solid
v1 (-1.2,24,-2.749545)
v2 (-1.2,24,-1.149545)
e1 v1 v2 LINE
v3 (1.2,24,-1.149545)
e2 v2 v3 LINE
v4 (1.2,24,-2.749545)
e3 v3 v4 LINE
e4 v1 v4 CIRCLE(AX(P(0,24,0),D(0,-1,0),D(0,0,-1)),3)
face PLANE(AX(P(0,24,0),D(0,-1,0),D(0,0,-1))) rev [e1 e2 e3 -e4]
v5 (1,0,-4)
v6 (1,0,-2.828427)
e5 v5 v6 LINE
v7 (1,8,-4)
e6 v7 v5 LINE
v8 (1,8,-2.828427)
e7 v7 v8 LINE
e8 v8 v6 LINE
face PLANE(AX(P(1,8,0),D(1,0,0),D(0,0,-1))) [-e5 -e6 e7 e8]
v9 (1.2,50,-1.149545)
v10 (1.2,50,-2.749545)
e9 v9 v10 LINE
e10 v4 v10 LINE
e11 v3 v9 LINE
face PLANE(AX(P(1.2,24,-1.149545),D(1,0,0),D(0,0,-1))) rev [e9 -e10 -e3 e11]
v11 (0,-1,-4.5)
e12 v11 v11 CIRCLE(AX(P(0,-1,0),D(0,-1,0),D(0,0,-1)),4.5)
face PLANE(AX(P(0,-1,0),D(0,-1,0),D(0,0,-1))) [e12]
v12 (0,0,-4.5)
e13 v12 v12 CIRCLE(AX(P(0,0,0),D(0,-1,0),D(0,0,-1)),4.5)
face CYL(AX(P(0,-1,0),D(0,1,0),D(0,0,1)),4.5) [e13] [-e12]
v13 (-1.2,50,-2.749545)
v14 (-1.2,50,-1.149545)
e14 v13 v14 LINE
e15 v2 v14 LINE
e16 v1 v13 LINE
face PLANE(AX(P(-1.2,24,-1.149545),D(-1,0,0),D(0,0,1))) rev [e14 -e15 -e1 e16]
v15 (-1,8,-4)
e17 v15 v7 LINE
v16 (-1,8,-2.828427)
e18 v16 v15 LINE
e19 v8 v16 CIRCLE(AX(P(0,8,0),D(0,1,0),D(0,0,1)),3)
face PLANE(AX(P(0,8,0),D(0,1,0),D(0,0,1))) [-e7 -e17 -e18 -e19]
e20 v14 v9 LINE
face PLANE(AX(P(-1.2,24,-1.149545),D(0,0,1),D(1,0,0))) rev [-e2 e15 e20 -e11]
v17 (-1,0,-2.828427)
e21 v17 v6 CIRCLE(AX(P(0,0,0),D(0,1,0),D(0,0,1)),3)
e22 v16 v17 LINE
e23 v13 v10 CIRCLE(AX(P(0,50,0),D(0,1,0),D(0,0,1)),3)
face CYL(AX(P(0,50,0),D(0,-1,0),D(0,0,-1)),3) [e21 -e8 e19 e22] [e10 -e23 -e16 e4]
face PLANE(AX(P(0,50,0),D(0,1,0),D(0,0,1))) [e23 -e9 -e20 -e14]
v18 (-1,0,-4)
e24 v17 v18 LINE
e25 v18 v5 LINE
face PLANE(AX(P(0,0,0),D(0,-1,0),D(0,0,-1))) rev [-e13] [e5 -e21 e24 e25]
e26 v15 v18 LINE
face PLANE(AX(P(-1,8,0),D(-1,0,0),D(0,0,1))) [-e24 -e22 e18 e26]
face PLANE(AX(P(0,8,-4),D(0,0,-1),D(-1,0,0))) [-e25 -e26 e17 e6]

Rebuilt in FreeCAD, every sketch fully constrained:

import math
import FreeCAD as App
import Part
import Sketcher
Q = App.Units.Quantity

doc = App.newDocument("Part")
params = doc.addObject("Spreadsheet::Sheet", "Params")
for row, (alias, value) in enumerate([
    ("sketch1_diameter", "6 mm"),
    ("pad1_length", "50 mm"),
    ("sketch2_radius", "3 mm"),
    ("sketch2_width", "2 mm"),
    ("pad2_length", "8 mm"),
    ("sketch3_width", "2.4 mm"),
    ("sketch3_height", "1.6 mm"),
    ("pocket1_length", "26 mm"),
    ("sketch4_diameter", "9 mm"),
    ("pad3_length", "1 mm"),
], start=1):
    params.set(f"A{row}", alias)
    params.set(f"B{row}", "=" + value)
    params.setAlias(f"B{row}", alias)

body = doc.addObject("PartDesign::Body", "Body")

# Sketch on XZ plane
sketch1 = body.newObject("Sketcher::SketchObject", "Sketch")
sketch1.AttachmentSupport = (doc.getObject("XZ_Plane"), [""])
sketch1.MapMode = "FlatFace"
sketch1.addGeometry(Part.Circle(App.Vector(0, 0, 0), App.Vector(0, 0, 1), 3), False)
sketch1.addConstraint([
    Sketcher.Constraint("Coincident", 0, 3, -1, 1),
    Sketcher.Constraint("Diameter", 0, 6.0),
])
sketch1.setExpression("Constraints[1]", "Params.sketch1_diameter")
pad1 = body.newObject("PartDesign::Pad", "Pad")
pad1.Profile = sketch1
pad1.setExpression("Length", "Params.pad1_length")
pad1.Reversed = True

# Sketch on XZ plane
sketch2 = body.newObject("Sketcher::SketchObject", "Sketch001")
sketch2.AttachmentSupport = (doc.getObject("XZ_Plane"), [""])
sketch2.MapMode = "FlatFace"
sketch2.addGeometry([
    Part.LineSegment(App.Vector(-1, -4, 0), App.Vector(-1, -2.8, 0)),
    Part.ArcOfCircle(Part.Circle(App.Vector(0, 0, 0), App.Vector(0, 0, 1), 3), math.radians(-109), math.radians(-71)),
    Part.LineSegment(App.Vector(1, -2.8, 0), App.Vector(1, -4, 0)),
    Part.LineSegment(App.Vector(1, -4, 0), App.Vector(-1, -4, 0)),
], False)
sketch2.addConstraint([
    Sketcher.Constraint("Coincident", 0, 2, 1, 1),
    Sketcher.Constraint("Coincident", 1, 2, 2, 1),
    Sketcher.Constraint("Coincident", 2, 2, 3, 1),
    Sketcher.Constraint("Coincident", 3, 2, 0, 1),
    Sketcher.Constraint("Vertical", 0),
    Sketcher.Constraint("Vertical", 2),
    Sketcher.Constraint("Horizontal", 3),
    Sketcher.Constraint("Coincident", 1, 3, -1, 1),
    Sketcher.Constraint("Horizontal", 0, 2, 1, 2),
    Sketcher.Constraint("Radius", 1, 3.0),
    Sketcher.Constraint("DistanceX", 3, 2, 3, 1, 2.0),
    Sketcher.Constraint("DistanceY", 2, 2, -1, 1, 4.0),
])
sketch2.setExpression("Constraints[9]", "Params.sketch2_radius")
sketch2.setExpression("Constraints[10]", "Params.sketch2_width")
pad2 = body.newObject("PartDesign::Pad", "Pad001")
pad2.Profile = sketch2
pad2.setExpression("Length", "Params.pad2_length")
pad2.Reversed = True

# Sketch on XZ plane
sketch3 = body.newObject("Sketcher::SketchObject", "Sketch002")
sketch3.AttachmentSupport = (doc.getObject("XZ_Plane"), [""])
sketch3.MapMode = "FlatFace"
sketch3.AttachmentOffset = App.Placement(App.Vector(0, 0, -50), App.Rotation())
sketch3.addGeometry([
    Part.LineSegment(App.Vector(-1.2, -1.1, 0), App.Vector(1.2, -1.1, 0)),  # 0
    Part.LineSegment(App.Vector(1.2, -1.1, 0), App.Vector(1.2, -2.7, 0)),  # 1
    Part.LineSegment(App.Vector(1.2, -2.7, 0), App.Vector(0, -4.8, 0)),  # 2
    Part.LineSegment(App.Vector(0, -4.8, 0), App.Vector(-1.2, -2.7, 0)),  # 3
    Part.LineSegment(App.Vector(-1.2, -2.7, 0), App.Vector(-1.2, -1.1, 0)),  # 4
], False)
sketch3.addConstraint([
    Sketcher.Constraint("Coincident", 0, 2, 1, 1),
    Sketcher.Constraint("Coincident", 1, 2, 2, 1),
    Sketcher.Constraint("Coincident", 2, 2, 3, 1),
    Sketcher.Constraint("Coincident", 3, 2, 4, 1),
    Sketcher.Constraint("Coincident", 4, 2, 0, 1),
    Sketcher.Constraint("Horizontal", 0),
    Sketcher.Constraint("Vertical", 1),
    Sketcher.Constraint("Vertical", 4),
    Sketcher.Constraint("Symmetric", 1, 2, 3, 2, -2),
    Sketcher.Constraint("PointOnObject", 2, 2, -2),
    Sketcher.Constraint("Angle", 2, Q("-120 deg")),
    Sketcher.Constraint("DistanceX", 0, 1, 0, 2, 2.4),
    Sketcher.Constraint("DistanceY", 1, 2, 1, 1, 1.6),
    Sketcher.Constraint("DistanceY", 0, 2, -1, 1, 1.149545),
])
sketch3.setExpression("Constraints[11]", "Params.sketch3_width")
sketch3.setExpression("Constraints[12]", "Params.sketch3_height")
pocket1 = body.newObject("PartDesign::Pocket", "Pocket")
pocket1.Profile = sketch3
pocket1.setExpression("Length", "Params.pocket1_length")
pocket1.Reversed = True

# Sketch on XZ plane
sketch4 = body.newObject("Sketcher::SketchObject", "Sketch003")
sketch4.AttachmentSupport = (doc.getObject("XZ_Plane"), [""])
sketch4.MapMode = "FlatFace"
sketch4.addGeometry(Part.Circle(App.Vector(0, 0, 0), App.Vector(0, 0, 1), 4.5), False)
sketch4.addConstraint([
    Sketcher.Constraint("Coincident", 0, 3, -1, 1),
    Sketcher.Constraint("Diameter", 0, 9.0),
])
sketch4.setExpression("Constraints[1]", "Params.sketch4_diameter")
pad3 = body.newObject("PartDesign::Pad", "Pad002")
pad3.Profile = sketch4
pad3.setExpression("Length", "Params.pad3_length")

doc.recompute()
